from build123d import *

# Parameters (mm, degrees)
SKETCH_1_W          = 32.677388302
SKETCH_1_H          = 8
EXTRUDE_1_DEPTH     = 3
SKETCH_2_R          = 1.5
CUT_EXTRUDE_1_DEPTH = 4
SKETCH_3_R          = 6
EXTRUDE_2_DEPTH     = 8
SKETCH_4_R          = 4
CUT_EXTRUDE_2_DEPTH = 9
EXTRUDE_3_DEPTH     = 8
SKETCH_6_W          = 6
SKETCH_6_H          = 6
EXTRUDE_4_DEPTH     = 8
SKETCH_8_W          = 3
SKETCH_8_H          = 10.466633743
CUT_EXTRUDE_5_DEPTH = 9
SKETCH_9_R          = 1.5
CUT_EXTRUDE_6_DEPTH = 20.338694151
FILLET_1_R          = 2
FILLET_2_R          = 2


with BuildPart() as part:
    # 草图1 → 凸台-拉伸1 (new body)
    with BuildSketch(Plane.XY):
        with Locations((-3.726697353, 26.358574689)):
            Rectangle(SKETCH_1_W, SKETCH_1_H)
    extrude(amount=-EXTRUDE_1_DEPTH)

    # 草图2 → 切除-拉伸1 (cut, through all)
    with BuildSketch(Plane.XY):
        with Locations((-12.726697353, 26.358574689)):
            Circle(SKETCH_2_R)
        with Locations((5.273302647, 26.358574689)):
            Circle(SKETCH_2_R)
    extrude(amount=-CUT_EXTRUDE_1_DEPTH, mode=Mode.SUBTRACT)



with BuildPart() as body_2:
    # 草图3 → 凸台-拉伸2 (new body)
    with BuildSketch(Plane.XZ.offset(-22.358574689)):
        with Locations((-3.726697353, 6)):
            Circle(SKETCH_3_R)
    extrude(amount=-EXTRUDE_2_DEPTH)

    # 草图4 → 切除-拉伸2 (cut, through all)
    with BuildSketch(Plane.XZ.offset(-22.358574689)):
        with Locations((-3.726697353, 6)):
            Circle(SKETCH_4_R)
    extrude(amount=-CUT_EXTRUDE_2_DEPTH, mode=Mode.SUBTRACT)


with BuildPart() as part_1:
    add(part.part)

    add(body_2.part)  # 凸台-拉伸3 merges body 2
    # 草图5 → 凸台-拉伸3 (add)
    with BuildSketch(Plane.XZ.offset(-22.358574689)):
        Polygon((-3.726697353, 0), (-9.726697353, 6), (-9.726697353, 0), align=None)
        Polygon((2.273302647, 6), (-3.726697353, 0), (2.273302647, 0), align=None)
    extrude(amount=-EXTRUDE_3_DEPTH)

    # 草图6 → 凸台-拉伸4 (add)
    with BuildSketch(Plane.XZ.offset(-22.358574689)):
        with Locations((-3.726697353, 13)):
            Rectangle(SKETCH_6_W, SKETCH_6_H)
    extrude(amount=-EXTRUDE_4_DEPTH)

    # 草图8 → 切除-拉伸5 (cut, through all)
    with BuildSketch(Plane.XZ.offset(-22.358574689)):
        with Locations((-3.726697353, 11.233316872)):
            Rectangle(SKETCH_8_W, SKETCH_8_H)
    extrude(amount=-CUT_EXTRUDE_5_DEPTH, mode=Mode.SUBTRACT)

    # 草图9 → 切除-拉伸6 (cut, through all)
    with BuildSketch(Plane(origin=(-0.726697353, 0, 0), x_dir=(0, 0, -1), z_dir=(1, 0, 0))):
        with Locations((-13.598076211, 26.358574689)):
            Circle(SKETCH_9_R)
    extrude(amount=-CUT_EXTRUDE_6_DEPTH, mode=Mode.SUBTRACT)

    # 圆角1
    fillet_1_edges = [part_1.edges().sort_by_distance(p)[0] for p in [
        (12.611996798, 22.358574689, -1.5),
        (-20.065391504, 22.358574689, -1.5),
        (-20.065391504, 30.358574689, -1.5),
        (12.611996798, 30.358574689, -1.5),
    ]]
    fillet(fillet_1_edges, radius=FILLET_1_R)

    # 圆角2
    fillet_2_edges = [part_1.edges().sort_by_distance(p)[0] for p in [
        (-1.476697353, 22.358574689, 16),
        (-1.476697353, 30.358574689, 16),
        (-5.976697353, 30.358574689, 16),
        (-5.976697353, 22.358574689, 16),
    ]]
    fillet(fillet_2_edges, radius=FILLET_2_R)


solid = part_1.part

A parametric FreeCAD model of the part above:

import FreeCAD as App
import Part
import Sketcher

V = App.Vector


def edges_at(feature, points):
    """Names of the edges that pass closest to the given points."""
    edges = feature.Shape.Edges
    near = lambda p: min(range(len(edges)), key=lambda i: edges[i].distToShape(Part.Vertex(*p))[0])
    return sorted({f"Edge{near(p) + 1}" for p in points})


def add_polygon(sketch, points):
    """Adds a closed chain of lines whose ends are joined by coincident constraints."""
    first, n = sketch.GeometryCount, len(points)
    for a, b in zip(points, points[1:] + points[:1]):
        sketch.addGeometry(Part.LineSegment(App.Vector(*a, 0), App.Vector(*b, 0)), False)
    for i in range(n):
        sketch.addConstraint(Sketcher.Constraint("Coincident", first + i, 2, first + (i + 1) % n, 1))

doc = App.newDocument("Part")
body = doc.addObject("PartDesign::Body", "Body")

# Sketch on XY plane
sketch1 = body.newObject("Sketcher::SketchObject", "Sketch")
sketch1.AttachmentSupport = (doc.getObject("XY_Plane"), [""])
sketch1.MapMode = "FlatFace"
add_polygon(sketch1, [(-20, 30), (-20, 22), (13, 22), (13, 30)])  # lines 0-3
sketch1.addConstraint([
    Sketcher.Constraint("Vertical", 0),
    Sketcher.Constraint("Horizontal", 1),
    Sketcher.Constraint("Vertical", 2),
    Sketcher.Constraint("Horizontal", 3),
    Sketcher.Constraint("DistanceY", 0, 2, 0, 1, 8.0),
    Sketcher.Constraint("DistanceX", 1, 1, 1, 2, 32.677388),
    Sketcher.Constraint("DistanceX", 0, 2, -1, 1, 20.065392),
    Sketcher.Constraint("DistanceY", -1, 1, 0, 2, 22.358575),
])
pad1 = body.newObject("PartDesign::Pad", "Pad")
pad1.Profile = sketch1
pad1.Length = 3
pad1.Reversed = True

# Sketch on XY plane
sketch2 = body.newObject("Sketcher::SketchObject", "Sketch001")
sketch2.AttachmentSupport = (doc.getObject("XY_Plane"), [""])
sketch2.MapMode = "FlatFace"
sketch2.addGeometry([
    Part.Circle(V(-12.7, 26.4, 0), V(0, 0, 1), 1.5),
    Part.Circle(V(5.3, 26.4, 0), V(0, 0, 1), 1.5),
], False)
sketch2.addConstraint([
    Sketcher.Constraint("Equal", 0, 1),
    Sketcher.Constraint("Horizontal", 0, 3, 1, 3),
    Sketcher.Constraint("Diameter", 0, 3.0),
    Sketcher.Constraint("DistanceX", 0, 3, 1, 3, 18.0),
    Sketcher.Constraint("DistanceX", 0, 3, -1, 1, 12.726697),
    Sketcher.Constraint("DistanceY", -1, 1, 0, 3, 26.358575),
])
pocket1 = body.newObject("PartDesign::Pocket", "Pocket")
pocket1.Profile = sketch2
pocket1.Type = "ThroughAll"
body2 = doc.addObject("PartDesign::Body", "Body001")

# Sketch on XZ plane
sketch3 = body2.newObject("Sketcher::SketchObject", "Sketch002")
sketch3.AttachmentSupport = (doc.getObject("XZ_Plane001"), [""])
sketch3.MapMode = "FlatFace"
sketch3.AttachmentOffset = App.Placement(V(0, 0, -22.358575), App.Rotation())
sketch3.addGeometry(Part.Circle(V(-4, 6, 0), V(0, 0, 1), 6), False)
sketch3.addConstraint([
    Sketcher.Constraint("Diameter", 0, 12.0),
    Sketcher.Constraint("DistanceY", -1, 1, 0, 3, 6.0),
    Sketcher.Constraint("DistanceX", 0, 3, -1, 1, 3.726697),
])
pad2 = body2.newObject("PartDesign::Pad", "Pad001")
pad2.Profile = sketch3
pad2.Length = 8
pad2.Reversed = True

# Sketch on XZ plane
sketch4 = body2.newObject("Sketcher::SketchObject", "Sketch003")
sketch4.AttachmentSupport = (doc.getObject("XZ_Plane001"), [""])
sketch4.MapMode = "FlatFace"
sketch4.AttachmentOffset = App.Placement(V(0, 0, -22.358575), App.Rotation())
sketch4.addGeometry(Part.Circle(V(-3.7, 6, 0), V(0, 0, 1), 4), False)
sketch4.addConstraint([
    Sketcher.Constraint("Diameter", 0, 8.0),
    Sketcher.Constraint("DistanceY", -1, 1, 0, 3, 6.0),
    Sketcher.Constraint("DistanceX", 0, 3, -1, 1, 3.726697),
])
pocket2 = body2.newObject("PartDesign::Pocket", "Pocket001")
pocket2.Profile = sketch4
pocket2.Type = "ThroughAll"
body.AllowCompound = True
doc.recompute()

boolean = body.newObject("PartDesign::Boolean", "Boolean")
boolean.Type = "Fuse"
boolean.addObjects([body2])

# Sketch on XZ plane
sketch5 = body.newObject("Sketcher::SketchObject", "Sketch004")
sketch5.AttachmentSupport = (doc.getObject("XZ_Plane"), [""])
sketch5.MapMode = "FlatFace"
sketch5.AttachmentOffset = App.Placement(V(0, 0, -22.358575), App.Rotation())
add_polygon(sketch5, [(-4, 0), (-10, 6), (-10, 0)])  # lines 0-2
add_polygon(sketch5, [(2, 6), (-4, 0), (2, 0)])  # lines 3-5
sketch5.addConstraint([
    Sketcher.Constraint("Vertical", 1),
    Sketcher.Constraint("Horizontal", 2),
    Sketcher.Constraint("Horizontal", 4),
    Sketcher.Constraint("Vertical", 5),
    Sketcher.Constraint("Coincident", 3, 2, 2, 2),
    Sketcher.Constraint("PointOnObject", 1, 2, -1),
    Sketcher.Constraint("Perpendicular", 0, 3),
    Sketcher.Constraint("Horizontal", 0, 2, 5, 2),
    Sketcher.Constraint("Equal", 2, 4),
    Sketcher.Constraint("DistanceX", 2, 1, 2, 2, 6.0),
    Sketcher.Constraint("DistanceX", 0, 2, -1, 1, 9.726697),
])
pad3 = body.newObject("PartDesign::Pad", "Pad002")
pad3.Profile = sketch5
pad3.Length = 8
pad3.Reversed = True

# Sketch on XZ plane
sketch6 = body.newObject("Sketcher::SketchObject", "Sketch005")
sketch6.AttachmentSupport = (doc.getObject("XZ_Plane"), [""])
sketch6.MapMode = "FlatFace"
sketch6.AttachmentOffset = App.Placement(V(0, 0, -22.358575), App.Rotation())
add_polygon(sketch6, [(-7, 16), (-7, 10), (-1, 10), (-1, 16)])  # lines 0-3
sketch6.addConstraint([
    Sketcher.Constraint("Vertical", 0),
    Sketcher.Constraint("Horizontal", 1),
    Sketcher.Constraint("Vertical", 2),
    Sketcher.Constraint("Horizontal", 3),
    Sketcher.Constraint("Equal", 3, 0),
    Sketcher.Constraint("DistanceX", 1, 1, 1, 2, 6.0),
    Sketcher.Constraint("DistanceY", -1, 1, 0, 2, 10.0),
    Sketcher.Constraint("DistanceX", 0, 2, -1, 1, 6.726697),
])
pad4 = body.newObject("PartDesign::Pad", "Pad003")
pad4.Profile = sketch6
pad4.Length = 8
pad4.Reversed = True

# Sketch on XZ plane
sketch7 = body.newObject("Sketcher::SketchObject", "Sketch006")
sketch7.AttachmentSupport = (doc.getObject("XZ_Plane"), [""])
sketch7.MapMode = "FlatFace"
sketch7.AttachmentOffset = App.Placement(V(0, 0, -22.358575), App.Rotation())
add_polygon(sketch7, [(-5.2, 16.5), (-5.2, 6), (-2.2, 6), (-2.2, 16.5)])  # lines 0-3
sketch7.addConstraint([
    Sketcher.Constraint("Vertical", 0),
    Sketcher.Constraint("Horizontal", 1),
    Sketcher.Constraint("Vertical", 2),
    Sketcher.Constraint("Horizontal", 3),
    Sketcher.Constraint("DistanceX", 1, 1, 1, 2, 3.0),
    Sketcher.Constraint("DistanceY", -1, 1, 0, 2, 6.0),
    Sketcher.Constraint("DistanceY", 0, 2, 0, 1, 10.466634),
    Sketcher.Constraint("DistanceX", 0, 2, -1, 1, 5.226697),
])
pocket3 = body.newObject("PartDesign::Pocket", "Pocket002")
pocket3.Profile = sketch7
pocket3.Type = "ThroughAll"

# Sketch on YZ plane
sketch8 = body.newObject("Sketcher::SketchObject", "Sketch007")
sketch8.AttachmentSupport = (doc.getObject("YZ_Plane"), [""])
sketch8.MapMode = "FlatFace"
sketch8.AttachmentOffset = App.Placement(V(0, 0, -0.726697), App.Rotation())
sketch8.addGeometry(Part.Circle(V(26.4, 13.6, 0), V(0, 0, 1), 1.5), False)
sketch8.addConstraint([
    Sketcher.Constraint("Diameter", 0, 3.0),
    Sketcher.Constraint("DistanceX", -1, 1, 0, 3, 26.358575),
    Sketcher.Constraint("DistanceY", -1, 1, 0, 3, 13.598076),
])
pocket4 = body.newObject("PartDesign::Pocket", "Pocket003")
pocket4.Profile = sketch8
pocket4.Type = "ThroughAll"
doc.recompute()

fillet = body.newObject("PartDesign::Fillet", "Fillet")
fillet.Base = (pocket4, edges_at(pocket4, [
    (12.612, 22.359, -1.5),
    (-20.065, 22.359, -1.5),
    (-20.065, 30.359, -1.5),
    (12.612, 30.359, -1.5),
]))
fillet.Radius = 2
doc.recompute()

fillet2 = body.newObject("PartDesign::Fillet", "Fillet001")
fillet2.Base = (fillet, edges_at(fillet, [
    (-1.477, 22.359, 16),
    (-1.477, 30.359, 16),
    (-5.977, 30.359, 16),
    (-5.977, 22.359, 16),
]))
fillet2.Radius = 2

doc.recompute()
